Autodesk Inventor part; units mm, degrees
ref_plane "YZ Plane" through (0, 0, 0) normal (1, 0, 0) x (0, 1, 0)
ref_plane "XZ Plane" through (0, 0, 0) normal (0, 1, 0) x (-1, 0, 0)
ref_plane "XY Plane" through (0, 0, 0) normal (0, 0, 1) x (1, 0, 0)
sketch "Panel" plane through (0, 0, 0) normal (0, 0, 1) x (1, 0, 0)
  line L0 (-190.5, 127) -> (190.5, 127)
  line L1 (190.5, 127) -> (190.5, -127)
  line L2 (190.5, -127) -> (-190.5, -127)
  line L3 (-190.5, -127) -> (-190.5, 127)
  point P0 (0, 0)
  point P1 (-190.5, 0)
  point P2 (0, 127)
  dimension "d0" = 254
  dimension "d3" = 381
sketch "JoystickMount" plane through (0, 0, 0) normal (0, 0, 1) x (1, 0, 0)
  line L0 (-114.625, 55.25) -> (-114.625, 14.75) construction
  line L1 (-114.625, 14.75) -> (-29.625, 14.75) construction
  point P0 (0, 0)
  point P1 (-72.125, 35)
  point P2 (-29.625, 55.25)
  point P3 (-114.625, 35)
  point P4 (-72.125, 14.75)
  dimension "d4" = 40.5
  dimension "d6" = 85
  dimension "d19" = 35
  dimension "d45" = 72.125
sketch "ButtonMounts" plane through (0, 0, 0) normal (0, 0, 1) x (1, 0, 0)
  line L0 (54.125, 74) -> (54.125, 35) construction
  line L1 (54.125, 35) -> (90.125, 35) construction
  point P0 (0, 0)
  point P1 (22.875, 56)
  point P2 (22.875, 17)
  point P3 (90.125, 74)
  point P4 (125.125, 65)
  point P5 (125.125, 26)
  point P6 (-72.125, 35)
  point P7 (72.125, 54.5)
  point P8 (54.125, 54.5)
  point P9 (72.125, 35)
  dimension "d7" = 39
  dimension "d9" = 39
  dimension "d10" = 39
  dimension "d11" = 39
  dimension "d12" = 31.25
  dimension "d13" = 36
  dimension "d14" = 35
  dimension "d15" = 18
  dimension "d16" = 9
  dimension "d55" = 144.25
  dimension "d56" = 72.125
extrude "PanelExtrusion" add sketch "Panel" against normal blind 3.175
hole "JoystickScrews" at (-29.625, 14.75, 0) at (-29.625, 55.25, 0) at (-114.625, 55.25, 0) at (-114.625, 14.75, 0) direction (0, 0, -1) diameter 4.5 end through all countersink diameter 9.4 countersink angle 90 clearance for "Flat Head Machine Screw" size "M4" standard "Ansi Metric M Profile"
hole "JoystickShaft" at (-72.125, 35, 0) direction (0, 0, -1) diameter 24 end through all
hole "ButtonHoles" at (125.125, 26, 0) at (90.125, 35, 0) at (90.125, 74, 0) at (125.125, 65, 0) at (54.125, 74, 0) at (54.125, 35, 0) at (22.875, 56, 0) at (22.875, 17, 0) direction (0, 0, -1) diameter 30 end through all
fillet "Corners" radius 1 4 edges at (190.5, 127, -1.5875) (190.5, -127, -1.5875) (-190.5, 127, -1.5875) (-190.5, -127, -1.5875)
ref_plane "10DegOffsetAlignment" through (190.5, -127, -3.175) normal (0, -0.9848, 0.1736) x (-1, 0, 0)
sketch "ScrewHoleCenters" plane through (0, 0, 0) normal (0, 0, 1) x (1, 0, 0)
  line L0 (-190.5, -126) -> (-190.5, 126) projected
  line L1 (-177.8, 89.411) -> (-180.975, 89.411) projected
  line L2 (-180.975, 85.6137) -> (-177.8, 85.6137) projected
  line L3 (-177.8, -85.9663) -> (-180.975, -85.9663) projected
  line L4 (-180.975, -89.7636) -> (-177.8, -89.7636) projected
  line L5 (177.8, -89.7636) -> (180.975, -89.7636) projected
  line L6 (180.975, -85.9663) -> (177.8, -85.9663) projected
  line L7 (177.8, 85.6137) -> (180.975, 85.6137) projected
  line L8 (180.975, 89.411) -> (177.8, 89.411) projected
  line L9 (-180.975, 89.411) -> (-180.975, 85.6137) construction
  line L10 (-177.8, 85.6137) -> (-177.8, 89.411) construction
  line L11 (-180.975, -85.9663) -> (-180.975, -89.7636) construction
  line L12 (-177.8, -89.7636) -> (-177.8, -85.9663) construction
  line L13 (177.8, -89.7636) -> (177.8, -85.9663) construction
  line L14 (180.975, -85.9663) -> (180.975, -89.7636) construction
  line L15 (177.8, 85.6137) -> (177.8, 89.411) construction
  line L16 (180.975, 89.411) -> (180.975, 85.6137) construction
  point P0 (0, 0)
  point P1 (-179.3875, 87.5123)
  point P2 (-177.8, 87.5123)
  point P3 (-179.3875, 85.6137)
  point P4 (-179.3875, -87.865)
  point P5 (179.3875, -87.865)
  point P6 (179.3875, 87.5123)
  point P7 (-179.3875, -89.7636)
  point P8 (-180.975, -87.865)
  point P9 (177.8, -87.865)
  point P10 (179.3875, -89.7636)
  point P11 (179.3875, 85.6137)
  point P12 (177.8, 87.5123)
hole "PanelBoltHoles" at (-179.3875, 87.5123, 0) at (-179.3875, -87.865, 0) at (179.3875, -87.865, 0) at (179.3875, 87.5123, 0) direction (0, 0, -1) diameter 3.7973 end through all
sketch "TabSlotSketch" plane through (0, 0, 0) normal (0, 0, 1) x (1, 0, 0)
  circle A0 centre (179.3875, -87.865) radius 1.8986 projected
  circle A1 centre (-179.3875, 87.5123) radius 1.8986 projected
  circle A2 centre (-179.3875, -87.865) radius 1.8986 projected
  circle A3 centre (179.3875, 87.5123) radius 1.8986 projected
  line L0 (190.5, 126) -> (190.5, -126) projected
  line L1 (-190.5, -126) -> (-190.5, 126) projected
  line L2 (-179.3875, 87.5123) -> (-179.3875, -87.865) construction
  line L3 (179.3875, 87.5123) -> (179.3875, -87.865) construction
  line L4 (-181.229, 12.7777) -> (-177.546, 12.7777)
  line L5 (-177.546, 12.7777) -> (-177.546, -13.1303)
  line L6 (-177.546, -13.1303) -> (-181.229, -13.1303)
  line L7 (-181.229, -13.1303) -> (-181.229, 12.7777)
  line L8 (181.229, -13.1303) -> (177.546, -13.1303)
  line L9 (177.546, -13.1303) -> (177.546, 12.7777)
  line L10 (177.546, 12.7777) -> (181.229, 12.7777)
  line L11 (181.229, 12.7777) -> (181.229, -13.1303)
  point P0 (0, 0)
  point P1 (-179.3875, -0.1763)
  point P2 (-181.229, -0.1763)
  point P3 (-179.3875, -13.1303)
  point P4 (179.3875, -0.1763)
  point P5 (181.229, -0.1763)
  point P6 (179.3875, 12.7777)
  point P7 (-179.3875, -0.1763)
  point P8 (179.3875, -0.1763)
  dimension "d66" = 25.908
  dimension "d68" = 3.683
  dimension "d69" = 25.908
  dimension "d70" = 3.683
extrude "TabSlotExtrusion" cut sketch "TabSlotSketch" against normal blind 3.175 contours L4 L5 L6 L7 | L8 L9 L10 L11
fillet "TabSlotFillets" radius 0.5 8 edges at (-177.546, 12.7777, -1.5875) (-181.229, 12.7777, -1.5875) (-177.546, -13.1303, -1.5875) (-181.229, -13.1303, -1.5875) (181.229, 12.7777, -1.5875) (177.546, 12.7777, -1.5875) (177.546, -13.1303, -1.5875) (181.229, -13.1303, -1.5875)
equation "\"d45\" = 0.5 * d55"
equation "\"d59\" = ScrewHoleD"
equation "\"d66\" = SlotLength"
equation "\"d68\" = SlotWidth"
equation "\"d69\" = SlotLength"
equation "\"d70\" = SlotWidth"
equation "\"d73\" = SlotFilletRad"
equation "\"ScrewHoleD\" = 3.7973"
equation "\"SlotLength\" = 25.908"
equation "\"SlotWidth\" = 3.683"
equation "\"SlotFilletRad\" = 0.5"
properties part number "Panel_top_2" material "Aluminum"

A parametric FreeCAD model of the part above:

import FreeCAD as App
import Part
import Sketcher
Q = App.Units.Quantity


def edges_at(feature, points):
    """Names of the edges that pass closest to the given points."""
    edges = feature.Shape.Edges
    near = lambda p: min(range(len(edges)), key=lambda i: edges[i].distToShape(Part.Vertex(*p))[0])
    return sorted({f"Edge{near(p) + 1}" for p in points})


def add_polygon(sketch, points):
    """Adds a closed chain of lines whose ends are joined by coincident constraints."""
    first, n = sketch.GeometryCount, len(points)
    for a, b in zip(points, points[1:] + points[:1]):
        sketch.addGeometry(Part.LineSegment(App.Vector(*a, 0), App.Vector(*b, 0)), False)
    for i in range(n):
        sketch.addConstraint(Sketcher.Constraint("Coincident", first + i, 2, first + (i + 1) % n, 1))

doc = App.newDocument("Part")
params = doc.addObject("Spreadsheet::Sheet", "Params")
for row, (alias, value) in enumerate([
    ("sketch1_width", "15 in"),
    ("sketch1_height", "10 in"),
    ("pad1_length", "0.125 in"),
    ("hole_diameter", "4.5 mm"),
    ("hole_csink_diameter", "9.4 mm"),
    ("hole2_diameter", "24 mm"),
    ("hole3_diameter", "1.1811024 in"),
    ("fillet_radius", "1 mm"),
    ("hole4_diameter", "0.1495 in"),
    ("sketch6_height", "1.02 in"),
    ("sketch6_width", "0.145 in"),
    ("pocket1_length", "0.125 in"),
    ("fillet2_radius", "0.5 mm"),
], start=1):
    params.set(f"A{row}", alias)
    params.set(f"B{row}", "=" + value)
    params.setAlias(f"B{row}", alias)

body = doc.addObject("PartDesign::Body", "Body")

sketch1 = doc.addObject("Sketcher::SketchObject", "Sketch")
body.addObject(sketch1)
sketch1.AttachmentSupport = (doc.XY_Plane, [""])
sketch1.MapMode = "FlatFace"
add_polygon(sketch1, [(190, 127), (-190, 127), (-190, -127), (190, -127)])
sketch1.addConstraint(Sketcher.Constraint("Horizontal", 0))
sketch1.addConstraint(Sketcher.Constraint("Vertical", 1))
sketch1.addConstraint(Sketcher.Constraint("Horizontal", 2))
sketch1.addConstraint(Sketcher.Constraint("Vertical", 3))
sketch1.addConstraint(Sketcher.Constraint("Symmetric", 0, 2, 2, 2, -1, 1))
sketch1.addConstraint(Sketcher.Constraint("DistanceX", 0, 2, 0, 1, Q("15 in")))
sketch1.addConstraint(Sketcher.Constraint("DistanceY", 1, 2, 1, 1, Q("10 in")))
sketch1.setExpression("Constraints[9]", "Params.sketch1_width")
sketch1.setExpression("Constraints[10]", "Params.sketch1_height")
pad1 = doc.addObject("PartDesign::Pad", "Pad")
body.addObject(pad1)
pad1.Profile = sketch1
pad1.setExpression("Length", "Params.pad1_length")
pad1.Reversed = True

sketch2 = doc.addObject("Sketcher::SketchObject", "Sketch001")
body.addObject(sketch2)
sketch2.AttachmentSupport = (doc.XY_Plane, [""])
sketch2.MapMode = "FlatFace"
sketch2.addGeometry(Part.Circle(App.Vector(-29.6, 14.8, 0), App.Vector(0, 0, 1), 2.2), False)
sketch2.addGeometry(Part.Circle(App.Vector(-29.6, 55.2, 0), App.Vector(0, 0, 1), 2.2), False)
sketch2.addGeometry(Part.Circle(App.Vector(-114.6, 55.2, 0), App.Vector(0, 0, 1), 2.2), False)
sketch2.addGeometry(Part.Circle(App.Vector(-114.6, 14.8, 0), App.Vector(0, 0, 1), 2.2), False)
sketch2.addConstraint(Sketcher.Constraint("Equal", 0, 1))
sketch2.addConstraint(Sketcher.Constraint("Equal", 1, 2))
sketch2.addConstraint(Sketcher.Constraint("Equal", 2, 3))
sketch2.addConstraint(Sketcher.Constraint("Horizontal", 1, 3, 2, 3))
sketch2.addConstraint(Sketcher.Constraint("Horizontal", 0, 3, 3, 3))
sketch2.addConstraint(Sketcher.Constraint("Vertical", 0, 3, 1, 3))
sketch2.addConstraint(Sketcher.Constraint("Vertical", 2, 3, 3, 3))
sketch2.addConstraint(Sketcher.Constraint("Diameter", 0, 4.5))
sketch2.addConstraint(Sketcher.Constraint("DistanceY", -1, 1, 0, 3, Q("0.5807 in")))
sketch2.addConstraint(Sketcher.Constraint("DistanceY", -1, 1, 1, 3, Q("2.1752 in")))
sketch2.addConstraint(Sketcher.Constraint("DistanceX", 2, 3, -1, 1, Q("4.5128 in")))
sketch2.addConstraint(Sketcher.Constraint("DistanceX", 0, 3, -1, 1, 29.625))
doc.recompute()
hole = doc.addObject("PartDesign::Hole", "Hole")
body.addObject(hole)
hole.Profile = sketch2
hole.ThreadType = "None"
hole.setExpression("Diameter", "Params.hole_diameter")
hole.DepthType = "ThroughAll"
hole.HoleCutType = "Countersink"
hole.setExpression("HoleCutDiameter", "Params.hole_csink_diameter")
hole.HoleCutCountersinkAngle = 90

sketch3 = doc.addObject("Sketcher::SketchObject", "Sketch002")
body.addObject(sketch3)
sketch3.AttachmentSupport = (doc.XY_Plane, [""])
sketch3.MapMode = "FlatFace"
sketch3.addGeometry(Part.Circle(App.Vector(-72, 35, 0), App.Vector(0, 0, 1), 12), False)
sketch3.addConstraint(Sketcher.Constraint("Diameter", 0, 24.0))
sketch3.addConstraint(Sketcher.Constraint("DistanceX", 0, 3, -1, 1, 72.125))
sketch3.addConstraint(Sketcher.Constraint("DistanceY", -1, 1, 0, 3, 35.0))
doc.recompute()
hole2 = doc.addObject("PartDesign::Hole", "Hole001")
body.addObject(hole2)
hole2.Profile = sketch3
hole2.ThreadType = "None"
hole2.setExpression("Diameter", "Params.hole2_diameter")
hole2.DepthType = "ThroughAll"

sketch4 = doc.addObject("Sketcher::SketchObject", "Sketch003")
body.addObject(sketch4)
sketch4.AttachmentSupport = (doc.XY_Plane, [""])
sketch4.MapMode = "FlatFace"
sketch4.addGeometry(Part.Circle(App.Vector(125, 26, 0), App.Vector(0, 0, 1), 15), False)
sketch4.addGeometry(Part.Circle(App.Vector(90, 35, 0), App.Vector(0, 0, 1), 15), False)
sketch4.addGeometry(Part.Circle(App.Vector(90, 74, 0), App.Vector(0, 0, 1), 15), False)
sketch4.addGeometry(Part.Circle(App.Vector(125, 65, 0), App.Vector(0, 0, 1), 15), False)
sketch4.addGeometry(Part.Circle(App.Vector(54, 74, 0), App.Vector(0, 0, 1), 15), False)
sketch4.addGeometry(Part.Circle(App.Vector(54, 35, 0), App.Vector(0, 0, 1), 15), False)
sketch4.addGeometry(Part.Circle(App.Vector(23, 56, 0), App.Vector(0, 0, 1), 15), False)
sketch4.addGeometry(Part.Circle(App.Vector(23, 17, 0), App.Vector(0, 0, 1), 15), False)
sketch4.addConstraint(Sketcher.Constraint("Equal", 0, 1))
sketch4.addConstraint(Sketcher.Constraint("Equal", 1, 2))
sketch4.addConstraint(Sketcher.Constraint("Equal", 2, 3))
sketch4.addConstraint(Sketcher.Constraint("Equal", 3, 4))
sketch4.addConstraint(Sketcher.Constraint("Equal", 4, 5))
sketch4.addConstraint(Sketcher.Constraint("Equal", 5, 6))
sketch4.addConstraint(Sketcher.Constraint("Equal", 6, 7))
sketch4.addConstraint(Sketcher.Constraint("Horizontal", 2, 3, 4, 3))
sketch4.addConstraint(Sketcher.Constraint("Horizontal", 1, 3, 5, 3))
sketch4.addConstraint(Sketcher.Constraint("Vertical", 1, 3, 2, 3))
sketch4.addConstraint(Sketcher.Constraint("Vertical", 0, 3, 3, 3))
sketch4.addConstraint(Sketcher.Constraint("Vertical", 4, 3, 5, 3))
sketch4.addConstraint(Sketcher.Constraint("Vertical", 6, 3, 7, 3))
sketch4.addConstraint(Sketcher.Constraint("Diameter", 0, Q("1.1811 in")))
sketch4.addConstraint(Sketcher.Constraint("DistanceX", -1, 1, 4, 3, Q("2.1309 in")))
sketch4.addConstraint(Sketcher.Constraint("DistanceX", -1, 1, 6, 3, Q("0.9006 in")))
sketch4.addConstraint(Sketcher.Constraint("DistanceY", -1, 1, 7, 3, Q("0.6693 in")))
sketch4.addConstraint(Sketcher.Constraint("DistanceY", 1, 3, 3, 3, Q("1.1811 in")))
sketch4.addConstraint(Sketcher.Constraint("DistanceX", 6, 3, 3, 3, Q("4.0256 in")))
sketch4.addConstraint(Sketcher.Constraint("DistanceY", 7, 3, 4, 3, Q("2.2441 in")))
sketch4.addConstraint(Sketcher.Constraint("DistanceY", -1, 1, 0, 3, 26.0))
sketch4.addConstraint(Sketcher.Constraint("DistanceX", -1, 1, 1, 3, 90.125))
sketch4.addConstraint(Sketcher.Constraint("DistanceY", -1, 1, 1, 3, 35.0))
sketch4.addConstraint(Sketcher.Constraint("DistanceY", -1, 1, 6, 3, 56.0))
doc.recompute()
hole3 = doc.addObject("PartDesign::Hole", "Hole002")
body.addObject(hole3)
hole3.Profile = sketch4
hole3.ThreadType = "None"
hole3.setExpression("Diameter", "Params.hole3_diameter")
hole3.DepthType = "ThroughAll"
doc.recompute()

fillet = doc.addObject("PartDesign::Fillet", "Fillet")
body.addObject(fillet)
fillet.Base = (hole3, edges_at(hole3, [
    (190.5, 127, -1.587),
    (190.5, -127, -1.587),
    (-190.5, 127, -1.587),
    (-190.5, -127, -1.587),
]))
fillet.setExpression("Radius", "Params.fillet_radius")

sketch5 = doc.addObject("Sketcher::SketchObject", "Sketch004")
body.addObject(sketch5)
sketch5.AttachmentSupport = (doc.XY_Plane, [""])
sketch5.MapMode = "FlatFace"
sketch5.addGeometry(Part.Circle(App.Vector(-179.4, 87.5, 0), App.Vector(0, 0, 1), 1.9), False)
sketch5.addGeometry(Part.Circle(App.Vector(-179.4, -87.9, 0), App.Vector(0, 0, 1), 1.9), False)
sketch5.addGeometry(Part.Circle(App.Vector(179.4, -87.9, 0), App.Vector(0, 0, 1), 1.9), False)
sketch5.addGeometry(Part.Circle(App.Vector(179.4, 87.5, 0), App.Vector(0, 0, 1), 1.9), False)
sketch5.addConstraint(Sketcher.Constraint("Equal", 0, 1))
sketch5.addConstraint(Sketcher.Constraint("Equal", 1, 2))
sketch5.addConstraint(Sketcher.Constraint("Equal", 2, 3))
sketch5.addConstraint(Sketcher.Constraint("Symmetric", 1, 3, 2, 3, -2))
sketch5.addConstraint(Sketcher.Constraint("Symmetric", 0, 3, 3, 3, -2))
sketch5.addConstraint(Sketcher.Constraint("Vertical", 0, 3, 1, 3))
sketch5.addConstraint(Sketcher.Constraint("Diameter", 0, Q("0.1495 in")))
sketch5.addConstraint(Sketcher.Constraint("DistanceX", 0, 3, -1, 1, Q("7.0625 in")))
sketch5.addConstraint(Sketcher.Constraint("DistanceY", -1, 1, 0, 3, 87.5123))
sketch5.addConstraint(Sketcher.Constraint("DistanceY", 1, 3, -1, 1, 87.865))
doc.recompute()
hole4 = doc.addObject("PartDesign::Hole", "Hole003")
body.addObject(hole4)
hole4.Profile = sketch5
hole4.ThreadType = "None"
hole4.setExpression("Diameter", "Params.hole4_diameter")
hole4.DepthType = "ThroughAll"

sketch6 = doc.addObject("Sketcher::SketchObject", "Sketch005")
body.addObject(sketch6)
sketch6.AttachmentSupport = (doc.XY_Plane, [""])
sketch6.MapMode = "FlatFace"
add_polygon(sketch6, [(-177.5, 12.8), (-181.2, 12.8), (-181.2, -13.1), (-177.5, -13.1)])
add_polygon(sketch6, [(177.5, -13.1), (181.2, -13.1), (181.2, 12.8), (177.5, 12.8)])
sketch6.addConstraint(Sketcher.Constraint("Horizontal", 0))
sketch6.addConstraint(Sketcher.Constraint("Vertical", 1))
sketch6.addConstraint(Sketcher.Constraint("Horizontal", 2))
sketch6.addConstraint(Sketcher.Constraint("Vertical", 3))
sketch6.addConstraint(Sketcher.Constraint("Horizontal", 4))
sketch6.addConstraint(Sketcher.Constraint("Vertical", 5))
sketch6.addConstraint(Sketcher.Constraint("Horizontal", 6))
sketch6.addConstraint(Sketcher.Constraint("Vertical", 7))
sketch6.addConstraint(Sketcher.Constraint("Symmetric", 1, 2, 4, 2, -2))
sketch6.addConstraint(Sketcher.Constraint("Symmetric", 3, 2, 6, 2, -2))
sketch6.addConstraint(Sketcher.Constraint("DistanceY", 1, 2, 1, 1, Q("1.02 in")))
sketch6.addConstraint(Sketcher.Constraint("DistanceX", 0, 2, 0, 1, Q("0.145 in")))
sketch6.addConstraint(Sketcher.Constraint("DistanceX", 2, 2, -1, 1, Q("6.99 in")))
sketch6.addConstraint(Sketcher.Constraint("DistanceY", -1, 1, 0, 2, 12.7777))
sketch6.setExpression("Constraints[18]", "Params.sketch6_height")
sketch6.setExpression("Constraints[19]", "Params.sketch6_width")
pocket1 = doc.addObject("PartDesign::Pocket", "Pocket")
body.addObject(pocket1)
pocket1.Profile = sketch6
pocket1.setExpression("Length", "Params.pocket1_length")
doc.recompute()

fillet2 = doc.addObject("PartDesign::Fillet", "Fillet001")
body.addObject(fillet2)
fillet2.Base = (pocket1, edges_at(pocket1, [
    (-177.546, 12.778, -1.587),
    (-181.229, 12.778, -1.587),
    (-177.546, -13.13, -1.587),
    (-181.229, -13.13, -1.587),
    (181.229, 12.778, -1.587),
    (177.546, 12.778, -1.587),
    (177.546, -13.13, -1.587),
    (181.229, -13.13, -1.587),
]))
fillet2.setExpression("Radius", "Params.fillet2_radius")

doc.recompute()
